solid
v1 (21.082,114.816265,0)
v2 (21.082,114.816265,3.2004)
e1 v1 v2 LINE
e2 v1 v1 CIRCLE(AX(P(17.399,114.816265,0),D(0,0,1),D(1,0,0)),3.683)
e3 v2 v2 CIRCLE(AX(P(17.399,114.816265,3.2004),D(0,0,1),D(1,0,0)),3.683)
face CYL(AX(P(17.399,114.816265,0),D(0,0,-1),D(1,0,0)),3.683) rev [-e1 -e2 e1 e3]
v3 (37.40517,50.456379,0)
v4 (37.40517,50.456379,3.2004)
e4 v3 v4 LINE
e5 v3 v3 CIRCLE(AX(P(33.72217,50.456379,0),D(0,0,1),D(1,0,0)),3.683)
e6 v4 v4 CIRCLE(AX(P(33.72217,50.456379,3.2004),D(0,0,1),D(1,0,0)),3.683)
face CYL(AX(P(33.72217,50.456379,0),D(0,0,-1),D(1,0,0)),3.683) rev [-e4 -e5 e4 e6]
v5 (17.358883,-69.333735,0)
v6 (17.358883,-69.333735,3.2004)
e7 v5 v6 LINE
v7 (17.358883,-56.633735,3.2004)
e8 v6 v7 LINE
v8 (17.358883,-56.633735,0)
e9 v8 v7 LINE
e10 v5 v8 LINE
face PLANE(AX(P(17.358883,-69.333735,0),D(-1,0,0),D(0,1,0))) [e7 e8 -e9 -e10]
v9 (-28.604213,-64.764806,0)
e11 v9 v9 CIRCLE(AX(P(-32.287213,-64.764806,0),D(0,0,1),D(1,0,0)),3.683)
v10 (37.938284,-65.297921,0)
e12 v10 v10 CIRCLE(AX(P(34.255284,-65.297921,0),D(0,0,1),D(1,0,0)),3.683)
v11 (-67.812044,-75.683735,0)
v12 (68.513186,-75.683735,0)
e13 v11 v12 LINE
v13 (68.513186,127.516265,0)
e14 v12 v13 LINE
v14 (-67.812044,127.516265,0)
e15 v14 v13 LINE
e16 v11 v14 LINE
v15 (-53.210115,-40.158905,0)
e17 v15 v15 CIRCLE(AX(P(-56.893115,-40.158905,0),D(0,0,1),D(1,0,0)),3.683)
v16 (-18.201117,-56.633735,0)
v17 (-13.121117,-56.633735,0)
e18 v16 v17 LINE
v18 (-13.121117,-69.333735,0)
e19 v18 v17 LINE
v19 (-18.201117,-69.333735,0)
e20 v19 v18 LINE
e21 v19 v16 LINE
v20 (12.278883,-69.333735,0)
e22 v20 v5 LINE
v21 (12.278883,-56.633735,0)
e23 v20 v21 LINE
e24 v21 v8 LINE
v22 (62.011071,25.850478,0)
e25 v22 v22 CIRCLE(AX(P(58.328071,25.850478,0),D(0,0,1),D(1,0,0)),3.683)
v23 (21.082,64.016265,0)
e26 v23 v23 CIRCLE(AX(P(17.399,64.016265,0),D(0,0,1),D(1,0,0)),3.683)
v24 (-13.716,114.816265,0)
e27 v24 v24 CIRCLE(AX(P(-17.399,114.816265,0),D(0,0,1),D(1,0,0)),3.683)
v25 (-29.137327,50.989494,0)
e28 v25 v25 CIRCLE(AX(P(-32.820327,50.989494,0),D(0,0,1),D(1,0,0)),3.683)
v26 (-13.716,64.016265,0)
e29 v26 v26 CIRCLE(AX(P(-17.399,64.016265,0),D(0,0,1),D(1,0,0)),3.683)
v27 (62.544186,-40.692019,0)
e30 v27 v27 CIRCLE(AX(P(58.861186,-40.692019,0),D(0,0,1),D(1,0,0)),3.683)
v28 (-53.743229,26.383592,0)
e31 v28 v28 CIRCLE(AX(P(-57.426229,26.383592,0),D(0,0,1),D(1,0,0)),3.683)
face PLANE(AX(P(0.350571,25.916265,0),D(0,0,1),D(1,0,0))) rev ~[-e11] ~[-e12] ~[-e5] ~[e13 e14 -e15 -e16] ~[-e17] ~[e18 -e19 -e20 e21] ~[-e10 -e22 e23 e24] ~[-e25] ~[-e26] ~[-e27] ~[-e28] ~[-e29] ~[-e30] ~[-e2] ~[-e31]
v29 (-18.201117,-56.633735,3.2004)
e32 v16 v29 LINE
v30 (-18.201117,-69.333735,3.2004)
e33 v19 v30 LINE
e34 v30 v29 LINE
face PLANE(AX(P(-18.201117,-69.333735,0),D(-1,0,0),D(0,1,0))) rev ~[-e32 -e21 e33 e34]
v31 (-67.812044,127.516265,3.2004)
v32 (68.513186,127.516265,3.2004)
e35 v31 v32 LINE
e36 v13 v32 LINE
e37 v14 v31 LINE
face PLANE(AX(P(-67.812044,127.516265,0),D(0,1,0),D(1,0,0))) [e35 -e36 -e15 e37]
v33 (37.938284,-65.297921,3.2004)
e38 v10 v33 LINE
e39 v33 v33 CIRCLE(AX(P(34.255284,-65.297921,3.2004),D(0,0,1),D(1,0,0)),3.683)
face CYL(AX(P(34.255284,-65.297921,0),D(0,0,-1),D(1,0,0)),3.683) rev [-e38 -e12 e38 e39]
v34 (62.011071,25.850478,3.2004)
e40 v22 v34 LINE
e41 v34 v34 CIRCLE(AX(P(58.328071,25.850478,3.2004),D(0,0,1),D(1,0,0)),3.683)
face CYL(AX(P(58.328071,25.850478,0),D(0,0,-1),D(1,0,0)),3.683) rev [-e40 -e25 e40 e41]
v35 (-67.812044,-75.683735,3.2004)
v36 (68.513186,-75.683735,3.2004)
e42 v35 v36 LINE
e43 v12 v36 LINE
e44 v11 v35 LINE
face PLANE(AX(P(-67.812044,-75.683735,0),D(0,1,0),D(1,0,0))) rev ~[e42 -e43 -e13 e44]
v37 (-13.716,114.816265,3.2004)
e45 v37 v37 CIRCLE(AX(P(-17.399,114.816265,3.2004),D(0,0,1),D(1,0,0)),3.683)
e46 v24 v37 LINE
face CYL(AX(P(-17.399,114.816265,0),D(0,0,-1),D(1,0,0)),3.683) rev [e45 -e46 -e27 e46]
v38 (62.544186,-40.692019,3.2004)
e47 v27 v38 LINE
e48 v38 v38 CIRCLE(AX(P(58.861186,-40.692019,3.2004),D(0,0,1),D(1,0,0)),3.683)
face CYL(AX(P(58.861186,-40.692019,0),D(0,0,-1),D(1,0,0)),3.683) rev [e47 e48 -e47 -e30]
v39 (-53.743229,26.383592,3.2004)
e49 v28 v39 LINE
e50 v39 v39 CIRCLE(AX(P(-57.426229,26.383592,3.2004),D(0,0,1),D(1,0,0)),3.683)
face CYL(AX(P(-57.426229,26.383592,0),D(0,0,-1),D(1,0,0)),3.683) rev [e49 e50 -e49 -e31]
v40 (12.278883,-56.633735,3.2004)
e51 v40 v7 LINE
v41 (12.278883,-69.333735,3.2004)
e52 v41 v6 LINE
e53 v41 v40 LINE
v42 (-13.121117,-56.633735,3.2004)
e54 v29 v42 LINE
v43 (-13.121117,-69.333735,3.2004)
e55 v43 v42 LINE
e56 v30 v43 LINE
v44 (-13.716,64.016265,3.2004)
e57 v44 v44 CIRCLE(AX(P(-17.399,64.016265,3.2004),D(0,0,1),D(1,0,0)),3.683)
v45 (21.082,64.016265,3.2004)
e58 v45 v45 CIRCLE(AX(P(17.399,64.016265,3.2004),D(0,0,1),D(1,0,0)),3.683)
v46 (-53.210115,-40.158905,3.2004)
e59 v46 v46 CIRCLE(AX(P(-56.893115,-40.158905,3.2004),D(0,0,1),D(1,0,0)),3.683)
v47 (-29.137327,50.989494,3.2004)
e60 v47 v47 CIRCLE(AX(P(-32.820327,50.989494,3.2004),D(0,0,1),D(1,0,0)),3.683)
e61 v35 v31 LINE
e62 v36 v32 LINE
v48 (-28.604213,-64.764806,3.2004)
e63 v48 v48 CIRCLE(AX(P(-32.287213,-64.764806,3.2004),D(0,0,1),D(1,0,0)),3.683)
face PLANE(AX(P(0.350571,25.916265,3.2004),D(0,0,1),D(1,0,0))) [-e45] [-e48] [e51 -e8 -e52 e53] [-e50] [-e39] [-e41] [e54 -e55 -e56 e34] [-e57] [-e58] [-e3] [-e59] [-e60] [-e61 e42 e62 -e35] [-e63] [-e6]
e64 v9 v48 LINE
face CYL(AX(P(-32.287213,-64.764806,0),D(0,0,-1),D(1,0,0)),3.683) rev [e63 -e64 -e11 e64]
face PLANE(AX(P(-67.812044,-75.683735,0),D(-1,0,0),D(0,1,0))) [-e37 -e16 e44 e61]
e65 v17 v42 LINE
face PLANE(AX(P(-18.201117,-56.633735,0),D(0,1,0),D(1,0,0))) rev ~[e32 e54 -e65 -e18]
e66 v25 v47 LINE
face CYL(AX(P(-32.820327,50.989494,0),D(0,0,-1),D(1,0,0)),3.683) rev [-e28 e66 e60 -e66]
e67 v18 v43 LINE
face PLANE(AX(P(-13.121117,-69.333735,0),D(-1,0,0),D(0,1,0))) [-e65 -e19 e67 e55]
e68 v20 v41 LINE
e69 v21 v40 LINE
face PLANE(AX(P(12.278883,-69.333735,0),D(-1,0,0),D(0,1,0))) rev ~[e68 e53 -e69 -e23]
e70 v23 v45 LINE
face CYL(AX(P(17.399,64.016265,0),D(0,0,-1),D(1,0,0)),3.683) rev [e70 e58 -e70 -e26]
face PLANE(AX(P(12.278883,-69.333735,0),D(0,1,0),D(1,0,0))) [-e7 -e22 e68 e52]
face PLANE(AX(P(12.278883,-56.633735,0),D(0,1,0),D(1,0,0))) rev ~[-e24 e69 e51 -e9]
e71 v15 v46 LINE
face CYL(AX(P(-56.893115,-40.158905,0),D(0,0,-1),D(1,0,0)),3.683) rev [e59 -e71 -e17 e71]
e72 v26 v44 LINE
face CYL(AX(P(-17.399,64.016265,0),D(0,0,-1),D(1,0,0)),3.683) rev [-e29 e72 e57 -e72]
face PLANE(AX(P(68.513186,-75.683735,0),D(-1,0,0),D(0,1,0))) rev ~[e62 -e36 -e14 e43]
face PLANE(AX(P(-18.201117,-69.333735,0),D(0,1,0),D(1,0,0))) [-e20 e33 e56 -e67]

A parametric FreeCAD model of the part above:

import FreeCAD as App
import Part
import Sketcher

V = App.Vector
Q = App.Units.Quantity

doc = App.newDocument("Part")
body = doc.addObject("PartDesign::Body", "Body")

# Sketch on XY plane
sketch1 = body.newObject("Sketcher::SketchObject", "Sketch")
sketch1.AttachmentSupport = (doc.getObject("XY_Plane"), [""])
sketch1.MapMode = "FlatFace"
sketch1.addGeometry([
    Part.LineSegment(V(-67.8, 127.5, 0), V(-67.8, -75.7, 0)),  # 0
    Part.LineSegment(V(-67.8, -75.7, 0), V(68.5, -75.7, 0)),  # 1
    Part.LineSegment(V(68.5, -75.7, 0), V(68.5, 127.5, 0)),  # 2
    Part.LineSegment(V(68.5, 127.5, 0), V(-67.8, 127.5, 0)),  # 3
    Part.Circle(V(-32.3, -64.8, 0), V(0, 0, 1), 3.7),  # 4
    Part.Circle(V(-56.9, -40.2, 0), V(0, 0, 1), 3.7),  # 5
    Part.LineSegment(V(-13.1, -69.3, 0), V(-18.2, -69.3, 0)),  # 6
    Part.LineSegment(V(-18.2, -69.3, 0), V(-18.2, -56.6, 0)),  # 7
    Part.LineSegment(V(-18.2, -56.6, 0), V(-13.1, -56.6, 0)),  # 8
    Part.LineSegment(V(-13.1, -56.6, 0), V(-13.1, -69.3, 0)),  # 9
    Part.LineSegment(V(17.4, -69.3, 0), V(12.3, -69.3, 0)),  # 10
    Part.LineSegment(V(12.3, -69.3, 0), V(12.3, -56.6, 0)),  # 11
    Part.LineSegment(V(12.3, -56.6, 0), V(17.4, -56.6, 0)),  # 12
    Part.LineSegment(V(17.4, -56.6, 0), V(17.4, -69.3, 0)),  # 13
    Part.Circle(V(34.3, -65.3, 0), V(0, 0, 1), 3.7),  # 14
    Part.Circle(V(58.9, -40.7, 0), V(0, 0, 1), 3.7),  # 15
    Part.Circle(V(-57.4, 26.4, 0), V(0, 0, 1), 3.7),  # 16
    Part.Circle(V(-32.8, 51, 0), V(0, 0, 1), 3.7),  # 17
    Part.Circle(V(-17.4, 64, 0), V(0, 0, 1), 3.7),  # 18
    Part.Circle(V(-17.4, 114.8, 0), V(0, 0, 1), 3.7),  # 19
    Part.Circle(V(17.4, 64, 0), V(0, 0, 1), 3.7),  # 20
    Part.Circle(V(58.3, 25.9, 0), V(0, 0, 1), 3.7),  # 21
    Part.Circle(V(33.7, 50.5, 0), V(0, 0, 1), 3.7),  # 22
    Part.Circle(V(17.4, 114.8, 0), V(0, 0, 1), 3.7),  # 23
], False)
sketch1.addConstraint([
    Sketcher.Constraint("Coincident", 0, 2, 1, 1),
    Sketcher.Constraint("Coincident", 1, 2, 2, 1),
    Sketcher.Constraint("Coincident", 2, 2, 3, 1),
    Sketcher.Constraint("Coincident", 3, 2, 0, 1),
    Sketcher.Constraint("Coincident", 6, 2, 7, 1),
    Sketcher.Constraint("Coincident", 7, 2, 8, 1),
    Sketcher.Constraint("Coincident", 8, 2, 9, 1),
    Sketcher.Constraint("Coincident", 9, 2, 6, 1),
    Sketcher.Constraint("Coincident", 10, 2, 11, 1),
    Sketcher.Constraint("Coincident", 11, 2, 12, 1),
    Sketcher.Constraint("Coincident", 12, 2, 13, 1),
    Sketcher.Constraint("Coincident", 13, 2, 10, 1),
    Sketcher.Constraint("Vertical", 0),
    Sketcher.Constraint("Horizontal", 1),
    Sketcher.Constraint("Vertical", 2),
    Sketcher.Constraint("Horizontal", 3),
    Sketcher.Constraint("Horizontal", 6),
    Sketcher.Constraint("Vertical", 7),
    Sketcher.Constraint("Horizontal", 8),
    Sketcher.Constraint("Vertical", 9),
    Sketcher.Constraint("Horizontal", 10),
    Sketcher.Constraint("Vertical", 11),
    Sketcher.Constraint("Horizontal", 12),
    Sketcher.Constraint("Vertical", 13),
    Sketcher.Constraint("Equal", 4, 5),
    Sketcher.Constraint("Equal", 5, 14),
    Sketcher.Constraint("Equal", 14, 15),
    Sketcher.Constraint("Equal", 15, 16),
    Sketcher.Constraint("Equal", 16, 17),
    Sketcher.Constraint("Equal", 17, 18),
    Sketcher.Constraint("Equal", 18, 19),
    Sketcher.Constraint("Equal", 19, 20),
    Sketcher.Constraint("Equal", 20, 21),
    Sketcher.Constraint("Equal", 21, 22),
    Sketcher.Constraint("Equal", 22, 23),
    Sketcher.Constraint("Symmetric", 18, 3, 20, 3, -2),
    Sketcher.Constraint("Symmetric", 19, 3, 23, 3, -2),
    Sketcher.Constraint("Horizontal", 9, 2, 10, 2),
    Sketcher.Constraint("Horizontal", 8, 2, 11, 2),
    Sketcher.Constraint("Vertical", 18, 3, 19, 3),
    Sketcher.Constraint("Equal", 8, 10),
    Sketcher.Constraint("Diameter", 4, Q("0.29 in")),
    Sketcher.Constraint("DistanceY", 0, 2, 0, 1, Q("8 in")),
    Sketcher.Constraint("DistanceX", 6, 2, 6, 1, Q("0.2 in")),
    Sketcher.Constraint("DistanceY", 7, 1, 7, 2, Q("0.5 in")),
    Sketcher.Constraint("DistanceY", 18, 3, 19, 3, Q("2 in")),
    Sketcher.Constraint("DistanceX", 9, 2, 10, 2, Q("1 in")),
    Sketcher.Constraint("DistanceY", 23, 3, 2, 2, Q("0.5 in")),
    Sketcher.Constraint("DistanceX", 18, 3, 20, 3, Q("1.37 in")),
    Sketcher.Constraint("DistanceX", 15, 3, 1, 2, Q("0.38 in")),
    Sketcher.Constraint("DistanceY", 0, 2, 6, 2, Q("0.25 in")),
    Sketcher.Constraint("DistanceX", 1, 1, 1, 2, 136.325229),
    Sketcher.Constraint("DistanceY", 4, 3, 5, 3, 24.605901),
    Sketcher.Constraint("DistanceX", 5, 3, 14, 3, 91.148399),
    Sketcher.Constraint("DistanceX", 14, 3, 15, 3, 24.605902),
    Sketcher.Constraint("DistanceX", 4, 3, 15, 3, 91.148399),
    Sketcher.Constraint("DistanceY", 5, 3, 17, 3, 91.148399),
    Sketcher.Constraint("DistanceY", 14, 3, 21, 3, 91.148399),
    Sketcher.Constraint("DistanceX", 17, 3, 21, 3, 91.148398),
    Sketcher.Constraint("DistanceX", 22, 3, 21, 3, 24.605901),
    Sketcher.Constraint("DistanceY", 21, 3, 22, 3, 24.605901),
    Sketcher.Constraint("DistanceX", 6, 2, 14, 3, 52.456401),
    Sketcher.Constraint("DistanceY", 14, 3, -1, 1, 65.297921),
    Sketcher.Constraint("DistanceY", 15, 3, -1, 1, 40.692019),
    Sketcher.Constraint("DistanceX", 16, 3, -1, 1, 57.426229),
    Sketcher.Constraint("DistanceY", -1, 1, 16, 3, 26.383592),
    Sketcher.Constraint("DistanceX", -1, 1, 21, 3, 58.328071),
    Sketcher.Constraint("DistanceX", 5, 3, 17, 3, 24.072788),
    Sketcher.Constraint("DistanceY", 17, 3, 18, 3, 13.026771),
    Sketcher.Constraint("DistanceY", 4, 3, -1, 1, 64.764806),
])
pad1 = body.newObject("PartDesign::Pad", "Pad")
pad1.Profile = sketch1
pad1.Length = Q("0.126 in")

doc.recompute()
